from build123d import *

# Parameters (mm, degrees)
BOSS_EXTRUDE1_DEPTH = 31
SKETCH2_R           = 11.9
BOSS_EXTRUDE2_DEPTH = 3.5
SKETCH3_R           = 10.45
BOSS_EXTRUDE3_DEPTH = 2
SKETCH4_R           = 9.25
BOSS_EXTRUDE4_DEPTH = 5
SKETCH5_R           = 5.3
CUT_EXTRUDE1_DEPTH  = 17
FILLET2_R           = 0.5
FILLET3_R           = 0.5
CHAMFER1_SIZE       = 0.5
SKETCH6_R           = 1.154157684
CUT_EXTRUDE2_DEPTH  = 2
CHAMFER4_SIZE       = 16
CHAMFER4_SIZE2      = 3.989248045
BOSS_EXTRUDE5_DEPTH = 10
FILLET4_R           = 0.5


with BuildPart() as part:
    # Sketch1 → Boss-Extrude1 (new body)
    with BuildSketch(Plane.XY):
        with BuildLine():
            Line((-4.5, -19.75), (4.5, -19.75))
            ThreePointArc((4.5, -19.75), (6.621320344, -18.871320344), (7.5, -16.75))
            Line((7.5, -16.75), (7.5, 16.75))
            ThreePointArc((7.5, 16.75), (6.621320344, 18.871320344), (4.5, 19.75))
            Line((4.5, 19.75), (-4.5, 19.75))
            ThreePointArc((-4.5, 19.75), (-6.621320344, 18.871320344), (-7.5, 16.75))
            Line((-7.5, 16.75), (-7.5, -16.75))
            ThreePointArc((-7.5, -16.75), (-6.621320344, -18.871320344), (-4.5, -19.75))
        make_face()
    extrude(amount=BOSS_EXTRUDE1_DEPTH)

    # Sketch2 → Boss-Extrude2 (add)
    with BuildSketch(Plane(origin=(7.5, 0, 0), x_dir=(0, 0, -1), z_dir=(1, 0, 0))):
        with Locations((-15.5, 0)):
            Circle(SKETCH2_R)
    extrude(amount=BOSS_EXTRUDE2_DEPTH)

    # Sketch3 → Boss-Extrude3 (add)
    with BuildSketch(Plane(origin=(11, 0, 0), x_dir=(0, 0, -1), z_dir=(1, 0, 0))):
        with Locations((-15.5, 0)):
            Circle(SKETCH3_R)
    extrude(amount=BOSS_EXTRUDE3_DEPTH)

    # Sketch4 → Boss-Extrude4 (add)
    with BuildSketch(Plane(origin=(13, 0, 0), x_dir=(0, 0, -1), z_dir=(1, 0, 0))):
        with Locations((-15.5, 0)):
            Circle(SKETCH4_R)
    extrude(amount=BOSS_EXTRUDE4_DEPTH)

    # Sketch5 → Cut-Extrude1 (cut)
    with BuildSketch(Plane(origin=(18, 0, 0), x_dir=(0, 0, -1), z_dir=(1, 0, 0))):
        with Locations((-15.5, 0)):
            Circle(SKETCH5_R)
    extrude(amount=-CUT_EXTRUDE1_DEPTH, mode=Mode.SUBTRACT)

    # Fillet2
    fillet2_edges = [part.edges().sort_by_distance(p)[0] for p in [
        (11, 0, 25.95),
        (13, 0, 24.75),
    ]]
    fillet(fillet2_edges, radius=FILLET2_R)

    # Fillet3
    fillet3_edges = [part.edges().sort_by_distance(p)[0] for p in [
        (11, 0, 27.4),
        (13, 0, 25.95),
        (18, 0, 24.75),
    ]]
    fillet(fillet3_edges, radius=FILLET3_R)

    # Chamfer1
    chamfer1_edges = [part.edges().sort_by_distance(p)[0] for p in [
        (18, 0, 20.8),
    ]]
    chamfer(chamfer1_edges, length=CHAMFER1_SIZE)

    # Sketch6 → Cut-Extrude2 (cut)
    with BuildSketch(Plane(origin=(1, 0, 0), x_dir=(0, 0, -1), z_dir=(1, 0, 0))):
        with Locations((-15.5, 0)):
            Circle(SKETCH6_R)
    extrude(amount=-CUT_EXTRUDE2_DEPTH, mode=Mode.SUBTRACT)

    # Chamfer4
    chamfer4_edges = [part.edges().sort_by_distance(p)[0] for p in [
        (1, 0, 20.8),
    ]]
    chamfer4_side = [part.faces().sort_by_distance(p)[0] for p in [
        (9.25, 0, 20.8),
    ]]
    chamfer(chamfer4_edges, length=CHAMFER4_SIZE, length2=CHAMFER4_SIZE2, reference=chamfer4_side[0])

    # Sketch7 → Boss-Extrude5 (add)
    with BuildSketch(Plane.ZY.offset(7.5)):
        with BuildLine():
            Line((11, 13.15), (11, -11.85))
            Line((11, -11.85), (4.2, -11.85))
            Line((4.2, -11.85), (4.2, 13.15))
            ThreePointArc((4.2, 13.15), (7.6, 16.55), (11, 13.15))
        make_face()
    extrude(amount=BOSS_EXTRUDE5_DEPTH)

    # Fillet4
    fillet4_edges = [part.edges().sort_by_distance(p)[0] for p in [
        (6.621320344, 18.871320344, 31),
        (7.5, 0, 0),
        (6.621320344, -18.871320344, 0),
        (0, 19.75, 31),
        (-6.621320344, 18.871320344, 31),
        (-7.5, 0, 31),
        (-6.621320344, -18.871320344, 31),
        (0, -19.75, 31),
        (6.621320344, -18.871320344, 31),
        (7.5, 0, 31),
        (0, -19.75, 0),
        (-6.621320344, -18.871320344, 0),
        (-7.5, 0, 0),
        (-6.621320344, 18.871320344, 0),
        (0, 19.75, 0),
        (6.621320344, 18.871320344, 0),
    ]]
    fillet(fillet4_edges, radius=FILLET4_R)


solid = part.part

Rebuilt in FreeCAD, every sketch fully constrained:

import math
import FreeCAD as App
import Part
import Sketcher

V = App.Vector
Q = App.Units.Quantity


def edges_at(feature, points):
    """Names of the edges that pass closest to the given points."""
    edges = feature.Shape.Edges
    near = lambda p: min(range(len(edges)), key=lambda i: edges[i].distToShape(Part.Vertex(*p))[0])
    return sorted({f"Edge{near(p) + 1}" for p in points})

doc = App.newDocument("Part")
params = doc.addObject("Spreadsheet::Sheet", "Params")
for row, (alias, value) in enumerate([
    ("sketch1_radius", "3 mm"),
    ("sketch1_width", "9 mm"),
    ("sketch1_height", "33.5 mm"),
    ("pad1_length", "31 mm"),
    ("sketch2_diameter", "23.8 mm"),
    ("pad2_length", "3.5 mm"),
    ("sketch3_diameter", "20.9 mm"),
    ("pad3_length", "2 mm"),
    ("sketch4_diameter", "18.5 mm"),
    ("pad4_length", "5 mm"),
    ("sketch5_diameter", "10.6 mm"),
    ("pocket1_length", "17 mm"),
    ("fillet_radius", "0.5 mm"),
    ("fillet2_radius", "0.5 mm"),
    ("chamfer_size", "0.5 mm"),
    ("pocket2_length", "2 mm"),
    ("chamfer2_size", "16 mm"),
    ("chamfer2_size2", "3.989248 mm"),
    ("sketch7_radius", "3.4 mm"),
    ("sketch7_width", "25 mm"),
    ("pad5_length", "10 mm"),
    ("fillet3_radius", "0.5 mm"),
], start=1):
    params.set(f"A{row}", alias)
    params.set(f"B{row}", "=" + value)
    params.setAlias(f"B{row}", alias)

body = doc.addObject("PartDesign::Body", "Body")

# Sketch on XY plane
sketch1 = doc.addObject("Sketcher::SketchObject", "Sketch")
body.addObject(sketch1)
sketch1.AttachmentSupport = (doc.XY_Plane, [""])
sketch1.MapMode = "FlatFace"
sketch1.addGeometry(Part.LineSegment(V(-4.5, -19.8, 0), V(4.5, -19.8, 0)), False)
sketch1.addGeometry(Part.ArcOfCircle(Part.Circle(V(4.5, -16.8, 0), V(0, 0, 1), 3), math.radians(-90), math.radians(0)), False)
sketch1.addGeometry(Part.LineSegment(V(7.5, -16.8, 0), V(7.5, 16.8, 0)), False)
sketch1.addGeometry(Part.ArcOfCircle(Part.Circle(V(4.5, 16.8, 0), V(0, 0, 1), 3), math.radians(0), math.radians(90)), False)
sketch1.addGeometry(Part.LineSegment(V(4.5, 19.8, 0), V(-4.5, 19.8, 0)), False)
sketch1.addGeometry(Part.ArcOfCircle(Part.Circle(V(-4.5, 16.8, 0), V(0, 0, 1), 3), math.radians(90), math.radians(180)), False)
sketch1.addGeometry(Part.LineSegment(V(-7.5, 16.8, 0), V(-7.5, -16.8, 0)), False)
sketch1.addGeometry(Part.ArcOfCircle(Part.Circle(V(-4.5, -16.8, 0), V(0, 0, 1), 3), math.radians(180), math.radians(270)), False)
sketch1.addConstraint(Sketcher.Constraint("Tangent", 0, 2, 1, 1))
sketch1.addConstraint(Sketcher.Constraint("Tangent", 1, 2, 2, 1))
sketch1.addConstraint(Sketcher.Constraint("Tangent", 2, 2, 3, 1))
sketch1.addConstraint(Sketcher.Constraint("Tangent", 3, 2, 4, 1))
sketch1.addConstraint(Sketcher.Constraint("Tangent", 4, 2, 5, 1))
sketch1.addConstraint(Sketcher.Constraint("Tangent", 5, 2, 6, 1))
sketch1.addConstraint(Sketcher.Constraint("Tangent", 6, 2, 7, 1))
sketch1.addConstraint(Sketcher.Constraint("Tangent", 7, 2, 0, 1))
sketch1.addConstraint(Sketcher.Constraint("Horizontal", 0))
sketch1.addConstraint(Sketcher.Constraint("Vertical", 2))
sketch1.addConstraint(Sketcher.Constraint("Horizontal", 4))
sketch1.addConstraint(Sketcher.Constraint("Vertical", 6))
sketch1.addConstraint(Sketcher.Constraint("Equal", 1, 3))
sketch1.addConstraint(Sketcher.Constraint("Equal", 3, 5))
sketch1.addConstraint(Sketcher.Constraint("Equal", 5, 7))
sketch1.addConstraint(Sketcher.Constraint("Symmetric", 1, 3, 5, 3, -1, 1))
sketch1.addConstraint(Sketcher.Constraint("Radius", 1, Q("3 mm")))
sketch1.addConstraint(Sketcher.Constraint("DistanceX", 0, 1, 0, 2, Q("9 mm")))
sketch1.addConstraint(Sketcher.Constraint("DistanceY", 2, 1, 2, 2, Q("33.5 mm")))
sketch1.setExpression("Constraints[16]", "Params.sketch1_radius")
sketch1.setExpression("Constraints[17]", "Params.sketch1_width")
sketch1.setExpression("Constraints[18]", "Params.sketch1_height")
pad1 = doc.addObject("PartDesign::Pad", "Pad")
body.addObject(pad1)
pad1.Profile = sketch1
pad1.setExpression("Length", "Params.pad1_length")

# Sketch on YZ plane
sketch2 = doc.addObject("Sketcher::SketchObject", "Sketch001")
body.addObject(sketch2)
sketch2.AttachmentSupport = (doc.YZ_Plane, [""])
sketch2.MapMode = "FlatFace"
sketch2.AttachmentOffset = App.Placement(V(0, 0, 7.5), App.Rotation())
sketch2.addGeometry(Part.Circle(V(0, 16, 0), V(0, 0, 1), 12), False)
sketch2.addConstraint(Sketcher.Constraint("PointOnObject", 0, 3, -2))
sketch2.addConstraint(Sketcher.Constraint("Diameter", 0, Q("23.8 mm")))
sketch2.addConstraint(Sketcher.Constraint("DistanceY", -1, 1, 0, 3, Q("15.5 mm")))
sketch2.setExpression("Constraints[1]", "Params.sketch2_diameter")
pad2 = doc.addObject("PartDesign::Pad", "Pad001")
body.addObject(pad2)
pad2.Profile = sketch2
pad2.setExpression("Length", "Params.pad2_length")

# Sketch on YZ plane
sketch3 = doc.addObject("Sketcher::SketchObject", "Sketch002")
body.addObject(sketch3)
sketch3.AttachmentSupport = (doc.YZ_Plane, [""])
sketch3.MapMode = "FlatFace"
sketch3.AttachmentOffset = App.Placement(V(0, 0, 11), App.Rotation())
sketch3.addGeometry(Part.Circle(V(0, 16, 0), V(0, 0, 1), 10), False)
sketch3.addConstraint(Sketcher.Constraint("PointOnObject", 0, 3, -2))
sketch3.addConstraint(Sketcher.Constraint("Diameter", 0, Q("20.9 mm")))
sketch3.addConstraint(Sketcher.Constraint("DistanceY", -1, 1, 0, 3, Q("15.5 mm")))
sketch3.setExpression("Constraints[1]", "Params.sketch3_diameter")
pad3 = doc.addObject("PartDesign::Pad", "Pad002")
body.addObject(pad3)
pad3.Profile = sketch3
pad3.setExpression("Length", "Params.pad3_length")

# Sketch on YZ plane
sketch4 = doc.addObject("Sketcher::SketchObject", "Sketch003")
body.addObject(sketch4)
sketch4.AttachmentSupport = (doc.YZ_Plane, [""])
sketch4.MapMode = "FlatFace"
sketch4.AttachmentOffset = App.Placement(V(0, 0, 13), App.Rotation())
sketch4.addGeometry(Part.Circle(V(0, 16, 0), V(0, 0, 1), 9), False)
sketch4.addConstraint(Sketcher.Constraint("PointOnObject", 0, 3, -2))
sketch4.addConstraint(Sketcher.Constraint("Diameter", 0, Q("18.5 mm")))
sketch4.addConstraint(Sketcher.Constraint("DistanceY", -1, 1, 0, 3, Q("15.5 mm")))
sketch4.setExpression("Constraints[1]", "Params.sketch4_diameter")
pad4 = doc.addObject("PartDesign::Pad", "Pad003")
body.addObject(pad4)
pad4.Profile = sketch4
pad4.setExpression("Length", "Params.pad4_length")

# Sketch on YZ plane
sketch5 = doc.addObject("Sketcher::SketchObject", "Sketch004")
body.addObject(sketch5)
sketch5.AttachmentSupport = (doc.YZ_Plane, [""])
sketch5.MapMode = "FlatFace"
sketch5.AttachmentOffset = App.Placement(V(0, 0, 18), App.Rotation())
sketch5.addGeometry(Part.Circle(V(0, 16, 0), V(0, 0, 1), 5), False)
sketch5.addConstraint(Sketcher.Constraint("PointOnObject", 0, 3, -2))
sketch5.addConstraint(Sketcher.Constraint("Diameter", 0, Q("10.6 mm")))
sketch5.addConstraint(Sketcher.Constraint("DistanceY", -1, 1, 0, 3, Q("15.5 mm")))
sketch5.setExpression("Constraints[1]", "Params.sketch5_diameter")
pocket1 = doc.addObject("PartDesign::Pocket", "Pocket")
body.addObject(pocket1)
pocket1.Profile = sketch5
pocket1.setExpression("Length", "Params.pocket1_length")
doc.recompute()

fillet = doc.addObject("PartDesign::Fillet", "Fillet")
body.addObject(fillet)
fillet.Base = (pocket1, edges_at(pocket1, [(11, 0, 25.95), (13, 0, 24.75)]))
fillet.setExpression("Radius", "Params.fillet_radius")
doc.recompute()

fillet2 = doc.addObject("PartDesign::Fillet", "Fillet001")
body.addObject(fillet2)
fillet2.Base = (fillet, edges_at(fillet, [(11, 0, 27.4), (13, 0, 25.95), (18, 0, 24.75)]))
fillet2.setExpression("Radius", "Params.fillet2_radius")
doc.recompute()

chamfer = doc.addObject("PartDesign::Chamfer", "Chamfer")
body.addObject(chamfer)
chamfer.Base = (fillet2, edges_at(fillet2, [(18, 0, 20.8)]))
chamfer.setExpression("Size", "Params.chamfer_size")

# Sketch on YZ plane
sketch6 = doc.addObject("Sketcher::SketchObject", "Sketch005")
body.addObject(sketch6)
sketch6.AttachmentSupport = (doc.YZ_Plane, [""])
sketch6.MapMode = "FlatFace"
sketch6.AttachmentOffset = App.Placement(V(0, 0, 1), App.Rotation())
sketch6.addGeometry(Part.Circle(V(0, 15.5, 0), V(0, 0, 1), 1.2), False)
sketch6.addConstraint(Sketcher.Constraint("PointOnObject", 0, 3, -2))
sketch6.addConstraint(Sketcher.Constraint("DistanceY", -1, 1, 0, 3, Q("15.5 mm")))
sketch6.addConstraint(Sketcher.Constraint("Diameter", 0, Q("2.308315 mm")))
pocket2 = doc.addObject("PartDesign::Pocket", "Pocket001")
body.addObject(pocket2)
pocket2.Profile = sketch6
pocket2.setExpression("Length", "Params.pocket2_length")
doc.recompute()

chamfer2 = doc.addObject("PartDesign::Chamfer", "Chamfer001")
body.addObject(chamfer2)
chamfer2.Base = (pocket2, edges_at(pocket2, [(1, 0, 20.8)]))
chamfer2.ChamferType = "Two distances"
chamfer2.setExpression("Size", "Params.chamfer2_size")
chamfer2.setExpression("Size2", "Params.chamfer2_size2")

# Sketch on YZ plane
sketch7 = doc.addObject("Sketcher::SketchObject", "Sketch006")
body.addObject(sketch7)
sketch7.AttachmentSupport = (doc.YZ_Plane, [""])
sketch7.MapMode = "FlatFace"
sketch7.AttachmentOffset = App.Placement(V(0, 0, -7.5), App.Rotation())
sketch7.addGeometry(Part.LineSegment(V(-11.8, 11, 0), V(13.2, 11, 0)), False)
sketch7.addGeometry(Part.ArcOfCircle(Part.Circle(V(13.2, 7.6, 0), V(0, 0, 1), 3.4), math.radians(-90), math.radians(90)), False)
sketch7.addGeometry(Part.LineSegment(V(13.2, 4.2, 0), V(-11.8, 4.2, 0)), False)
sketch7.addGeometry(Part.LineSegment(V(-11.8, 4.2, 0), V(-11.8, 11, 0)), False)
sketch7.addConstraint(Sketcher.Constraint("Tangent", 0, 2, 1, 2))
sketch7.addConstraint(Sketcher.Constraint("Tangent", 1, 1, 2, 1))
sketch7.addConstraint(Sketcher.Constraint("Coincident", 2, 2, 3, 1))
sketch7.addConstraint(Sketcher.Constraint("Coincident", 3, 2, 0, 1))
sketch7.addConstraint(Sketcher.Constraint("Horizontal", 0))
sketch7.addConstraint(Sketcher.Constraint("Horizontal", 2))
sketch7.addConstraint(Sketcher.Constraint("Vertical", 3))
sketch7.addConstraint(Sketcher.Constraint("Radius", 1, Q("3.4 mm")))
sketch7.addConstraint(Sketcher.Constraint("DistanceX", 0, 1, 0, 2, Q("25 mm")))
sketch7.addConstraint(Sketcher.Constraint("DistanceY", -1, 1, 0, 2, Q("11 mm")))
sketch7.addConstraint(Sketcher.Constraint("DistanceX", -1, 1, 1, 3, Q("13.15 mm")))
sketch7.setExpression("Constraints[7]", "Params.sketch7_radius")
sketch7.setExpression("Constraints[8]", "Params.sketch7_width")
pad5 = doc.addObject("PartDesign::Pad", "Pad004")
body.addObject(pad5)
pad5.Profile = sketch7
pad5.setExpression("Length", "Params.pad5_length")
pad5.Reversed = True
doc.recompute()

fillet3 = doc.addObject("PartDesign::Fillet", "Fillet002")
body.addObject(fillet3)
fillet3.Base = (pad5, edges_at(pad5, [
    (6.621, 18.871, 31),
    (7.5, 0, 0),
    (6.621, -18.871, 0),
    (0, 19.75, 31),
    (-6.621, 18.871, 31),
    (-7.5, 0, 31),
    (-6.621, -18.871, 31),
    (0, -19.75, 31),
    (6.621, -18.871, 31),
    (7.5, 0, 31),
    (0, -19.75, 0),
    (-6.621, -18.871, 0),
    (-7.5, 0, 0),
    (-6.621, 18.871, 0),
    (0, 19.75, 0),
    (6.621, 18.871, 0),
]))
fillet3.setExpression("Radius", "Params.fillet3_radius")

doc.recompute()
